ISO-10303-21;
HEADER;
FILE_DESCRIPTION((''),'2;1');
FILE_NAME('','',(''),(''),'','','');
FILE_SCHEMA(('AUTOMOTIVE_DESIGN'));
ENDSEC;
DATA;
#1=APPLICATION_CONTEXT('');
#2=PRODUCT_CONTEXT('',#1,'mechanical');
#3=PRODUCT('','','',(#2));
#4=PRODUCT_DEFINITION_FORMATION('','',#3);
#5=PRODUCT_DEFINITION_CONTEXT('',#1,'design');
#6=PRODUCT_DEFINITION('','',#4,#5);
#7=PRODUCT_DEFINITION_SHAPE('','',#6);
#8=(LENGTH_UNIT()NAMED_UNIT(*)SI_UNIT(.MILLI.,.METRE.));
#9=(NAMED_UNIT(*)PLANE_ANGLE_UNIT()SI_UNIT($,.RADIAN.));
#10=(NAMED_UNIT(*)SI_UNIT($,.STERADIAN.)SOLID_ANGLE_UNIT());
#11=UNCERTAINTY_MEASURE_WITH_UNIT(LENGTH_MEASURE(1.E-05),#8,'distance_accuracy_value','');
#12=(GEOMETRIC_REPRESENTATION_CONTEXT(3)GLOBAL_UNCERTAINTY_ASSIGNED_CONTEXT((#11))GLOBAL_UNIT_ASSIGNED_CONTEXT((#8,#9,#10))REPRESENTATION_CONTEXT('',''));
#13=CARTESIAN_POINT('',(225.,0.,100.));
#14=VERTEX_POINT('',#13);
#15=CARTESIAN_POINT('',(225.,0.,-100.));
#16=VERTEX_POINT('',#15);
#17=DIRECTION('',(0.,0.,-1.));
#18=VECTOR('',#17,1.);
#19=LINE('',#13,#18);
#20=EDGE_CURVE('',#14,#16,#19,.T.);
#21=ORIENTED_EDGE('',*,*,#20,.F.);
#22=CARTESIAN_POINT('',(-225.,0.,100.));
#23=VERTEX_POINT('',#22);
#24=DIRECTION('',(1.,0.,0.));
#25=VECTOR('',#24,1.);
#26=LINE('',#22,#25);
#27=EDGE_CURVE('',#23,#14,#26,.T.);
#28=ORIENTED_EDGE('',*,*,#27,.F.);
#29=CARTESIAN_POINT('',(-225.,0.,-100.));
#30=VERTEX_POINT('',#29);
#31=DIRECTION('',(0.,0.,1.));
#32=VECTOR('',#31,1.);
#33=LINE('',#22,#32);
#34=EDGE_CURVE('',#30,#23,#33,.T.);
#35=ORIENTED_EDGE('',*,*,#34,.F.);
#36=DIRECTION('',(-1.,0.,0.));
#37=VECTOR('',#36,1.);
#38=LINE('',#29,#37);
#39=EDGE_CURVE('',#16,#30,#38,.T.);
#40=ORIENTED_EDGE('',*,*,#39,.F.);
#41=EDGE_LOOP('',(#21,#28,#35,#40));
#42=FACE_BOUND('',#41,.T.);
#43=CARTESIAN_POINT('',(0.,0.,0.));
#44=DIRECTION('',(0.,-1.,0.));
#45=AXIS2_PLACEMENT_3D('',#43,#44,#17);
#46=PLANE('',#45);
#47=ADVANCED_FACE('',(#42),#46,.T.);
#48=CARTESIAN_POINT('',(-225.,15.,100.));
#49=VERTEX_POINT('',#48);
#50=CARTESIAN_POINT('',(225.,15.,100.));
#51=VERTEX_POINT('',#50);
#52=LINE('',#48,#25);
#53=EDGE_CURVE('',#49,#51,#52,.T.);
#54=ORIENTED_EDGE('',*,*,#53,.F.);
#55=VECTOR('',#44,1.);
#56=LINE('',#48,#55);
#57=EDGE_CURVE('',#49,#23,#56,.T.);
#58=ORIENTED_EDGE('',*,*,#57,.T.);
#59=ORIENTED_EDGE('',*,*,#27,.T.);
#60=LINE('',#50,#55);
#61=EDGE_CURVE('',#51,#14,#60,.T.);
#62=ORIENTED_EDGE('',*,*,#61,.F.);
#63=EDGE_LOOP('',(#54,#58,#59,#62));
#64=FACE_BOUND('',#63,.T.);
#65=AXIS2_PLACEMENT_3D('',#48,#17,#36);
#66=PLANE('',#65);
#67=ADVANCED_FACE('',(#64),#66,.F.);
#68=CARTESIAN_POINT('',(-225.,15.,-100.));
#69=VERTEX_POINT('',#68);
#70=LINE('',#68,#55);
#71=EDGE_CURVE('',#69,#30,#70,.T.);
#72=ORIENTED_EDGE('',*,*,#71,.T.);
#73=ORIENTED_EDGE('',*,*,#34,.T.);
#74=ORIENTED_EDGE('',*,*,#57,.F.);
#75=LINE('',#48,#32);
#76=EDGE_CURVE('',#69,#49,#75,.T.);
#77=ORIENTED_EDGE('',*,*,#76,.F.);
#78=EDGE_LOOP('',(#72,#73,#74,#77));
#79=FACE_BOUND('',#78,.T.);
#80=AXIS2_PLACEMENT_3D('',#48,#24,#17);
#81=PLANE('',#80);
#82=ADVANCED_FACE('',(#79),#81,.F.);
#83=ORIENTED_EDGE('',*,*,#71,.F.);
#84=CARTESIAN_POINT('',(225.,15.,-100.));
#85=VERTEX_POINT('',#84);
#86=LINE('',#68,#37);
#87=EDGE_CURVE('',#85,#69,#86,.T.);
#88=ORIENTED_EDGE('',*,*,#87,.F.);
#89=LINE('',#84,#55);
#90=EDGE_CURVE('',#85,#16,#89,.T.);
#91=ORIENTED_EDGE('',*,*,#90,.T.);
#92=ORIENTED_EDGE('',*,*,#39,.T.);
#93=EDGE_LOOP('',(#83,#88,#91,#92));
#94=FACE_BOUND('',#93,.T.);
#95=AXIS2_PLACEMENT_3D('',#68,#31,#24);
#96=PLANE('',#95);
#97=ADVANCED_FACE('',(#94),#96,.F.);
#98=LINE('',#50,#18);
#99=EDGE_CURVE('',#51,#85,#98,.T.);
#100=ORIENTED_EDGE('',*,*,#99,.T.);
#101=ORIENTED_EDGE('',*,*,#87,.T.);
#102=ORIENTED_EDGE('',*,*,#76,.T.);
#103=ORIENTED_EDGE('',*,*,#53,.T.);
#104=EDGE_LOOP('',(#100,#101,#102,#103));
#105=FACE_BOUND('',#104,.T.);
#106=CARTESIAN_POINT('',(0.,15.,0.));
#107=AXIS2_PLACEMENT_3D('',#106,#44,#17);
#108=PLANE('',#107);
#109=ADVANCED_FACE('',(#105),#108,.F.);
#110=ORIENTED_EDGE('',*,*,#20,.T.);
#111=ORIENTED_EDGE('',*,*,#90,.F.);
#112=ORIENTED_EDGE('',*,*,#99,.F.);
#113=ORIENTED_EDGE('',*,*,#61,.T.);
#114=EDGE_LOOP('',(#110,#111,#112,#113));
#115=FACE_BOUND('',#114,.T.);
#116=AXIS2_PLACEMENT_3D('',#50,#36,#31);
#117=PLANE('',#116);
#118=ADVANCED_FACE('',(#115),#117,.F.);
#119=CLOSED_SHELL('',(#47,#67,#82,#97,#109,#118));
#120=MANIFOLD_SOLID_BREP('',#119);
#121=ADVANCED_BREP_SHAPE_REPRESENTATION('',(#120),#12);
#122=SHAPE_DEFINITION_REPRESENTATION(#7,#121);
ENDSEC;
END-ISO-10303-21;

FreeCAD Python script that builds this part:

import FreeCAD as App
import Part
import Sketcher

V = App.Vector

doc = App.newDocument("Part")
body = doc.addObject("PartDesign::Body", "Body")

# Sketch on XZ plane
sketch1 = body.newObject("Sketcher::SketchObject", "Sketch")
sketch1.AttachmentSupport = (doc.getObject("XZ_Plane"), [""])
sketch1.MapMode = "FlatFace"
sketch1.addGeometry(Part.LineSegment(V(-225, -100, 0), V(-225, 100, 0)), False)
sketch1.addGeometry(Part.LineSegment(V(-225, 100, 0), V(225, 100, 0)), False)
sketch1.addGeometry(Part.LineSegment(V(225, 100, 0), V(225, -100, 0)), False)
sketch1.addGeometry(Part.LineSegment(V(225, -100, 0), V(-225, -100, 0)), False)
sketch1.addConstraint(Sketcher.Constraint("Coincident", 0, 2, 1, 1))
sketch1.addConstraint(Sketcher.Constraint("Coincident", 1, 2, 2, 1))
sketch1.addConstraint(Sketcher.Constraint("Coincident", 2, 2, 3, 1))
sketch1.addConstraint(Sketcher.Constraint("Coincident", 3, 2, 0, 1))
sketch1.addConstraint(Sketcher.Constraint("Vertical", 0))
sketch1.addConstraint(Sketcher.Constraint("Horizontal", 1))
sketch1.addConstraint(Sketcher.Constraint("Vertical", 2))
sketch1.addConstraint(Sketcher.Constraint("Horizontal", 3))
sketch1.addConstraint(Sketcher.Constraint("Symmetric", 0, 2, 2, 2, -1, 1))
sketch1.addConstraint(Sketcher.Constraint("DistanceX", 1, 1, 1, 2, 450.0))
sketch1.addConstraint(Sketcher.Constraint("DistanceY", 0, 1, 0, 2, 200.0))
pad1 = body.newObject("PartDesign::Pad", "Pad")
pad1.Profile = sketch1
pad1.Length = 15
pad1.Reversed = True

doc.recompute()
